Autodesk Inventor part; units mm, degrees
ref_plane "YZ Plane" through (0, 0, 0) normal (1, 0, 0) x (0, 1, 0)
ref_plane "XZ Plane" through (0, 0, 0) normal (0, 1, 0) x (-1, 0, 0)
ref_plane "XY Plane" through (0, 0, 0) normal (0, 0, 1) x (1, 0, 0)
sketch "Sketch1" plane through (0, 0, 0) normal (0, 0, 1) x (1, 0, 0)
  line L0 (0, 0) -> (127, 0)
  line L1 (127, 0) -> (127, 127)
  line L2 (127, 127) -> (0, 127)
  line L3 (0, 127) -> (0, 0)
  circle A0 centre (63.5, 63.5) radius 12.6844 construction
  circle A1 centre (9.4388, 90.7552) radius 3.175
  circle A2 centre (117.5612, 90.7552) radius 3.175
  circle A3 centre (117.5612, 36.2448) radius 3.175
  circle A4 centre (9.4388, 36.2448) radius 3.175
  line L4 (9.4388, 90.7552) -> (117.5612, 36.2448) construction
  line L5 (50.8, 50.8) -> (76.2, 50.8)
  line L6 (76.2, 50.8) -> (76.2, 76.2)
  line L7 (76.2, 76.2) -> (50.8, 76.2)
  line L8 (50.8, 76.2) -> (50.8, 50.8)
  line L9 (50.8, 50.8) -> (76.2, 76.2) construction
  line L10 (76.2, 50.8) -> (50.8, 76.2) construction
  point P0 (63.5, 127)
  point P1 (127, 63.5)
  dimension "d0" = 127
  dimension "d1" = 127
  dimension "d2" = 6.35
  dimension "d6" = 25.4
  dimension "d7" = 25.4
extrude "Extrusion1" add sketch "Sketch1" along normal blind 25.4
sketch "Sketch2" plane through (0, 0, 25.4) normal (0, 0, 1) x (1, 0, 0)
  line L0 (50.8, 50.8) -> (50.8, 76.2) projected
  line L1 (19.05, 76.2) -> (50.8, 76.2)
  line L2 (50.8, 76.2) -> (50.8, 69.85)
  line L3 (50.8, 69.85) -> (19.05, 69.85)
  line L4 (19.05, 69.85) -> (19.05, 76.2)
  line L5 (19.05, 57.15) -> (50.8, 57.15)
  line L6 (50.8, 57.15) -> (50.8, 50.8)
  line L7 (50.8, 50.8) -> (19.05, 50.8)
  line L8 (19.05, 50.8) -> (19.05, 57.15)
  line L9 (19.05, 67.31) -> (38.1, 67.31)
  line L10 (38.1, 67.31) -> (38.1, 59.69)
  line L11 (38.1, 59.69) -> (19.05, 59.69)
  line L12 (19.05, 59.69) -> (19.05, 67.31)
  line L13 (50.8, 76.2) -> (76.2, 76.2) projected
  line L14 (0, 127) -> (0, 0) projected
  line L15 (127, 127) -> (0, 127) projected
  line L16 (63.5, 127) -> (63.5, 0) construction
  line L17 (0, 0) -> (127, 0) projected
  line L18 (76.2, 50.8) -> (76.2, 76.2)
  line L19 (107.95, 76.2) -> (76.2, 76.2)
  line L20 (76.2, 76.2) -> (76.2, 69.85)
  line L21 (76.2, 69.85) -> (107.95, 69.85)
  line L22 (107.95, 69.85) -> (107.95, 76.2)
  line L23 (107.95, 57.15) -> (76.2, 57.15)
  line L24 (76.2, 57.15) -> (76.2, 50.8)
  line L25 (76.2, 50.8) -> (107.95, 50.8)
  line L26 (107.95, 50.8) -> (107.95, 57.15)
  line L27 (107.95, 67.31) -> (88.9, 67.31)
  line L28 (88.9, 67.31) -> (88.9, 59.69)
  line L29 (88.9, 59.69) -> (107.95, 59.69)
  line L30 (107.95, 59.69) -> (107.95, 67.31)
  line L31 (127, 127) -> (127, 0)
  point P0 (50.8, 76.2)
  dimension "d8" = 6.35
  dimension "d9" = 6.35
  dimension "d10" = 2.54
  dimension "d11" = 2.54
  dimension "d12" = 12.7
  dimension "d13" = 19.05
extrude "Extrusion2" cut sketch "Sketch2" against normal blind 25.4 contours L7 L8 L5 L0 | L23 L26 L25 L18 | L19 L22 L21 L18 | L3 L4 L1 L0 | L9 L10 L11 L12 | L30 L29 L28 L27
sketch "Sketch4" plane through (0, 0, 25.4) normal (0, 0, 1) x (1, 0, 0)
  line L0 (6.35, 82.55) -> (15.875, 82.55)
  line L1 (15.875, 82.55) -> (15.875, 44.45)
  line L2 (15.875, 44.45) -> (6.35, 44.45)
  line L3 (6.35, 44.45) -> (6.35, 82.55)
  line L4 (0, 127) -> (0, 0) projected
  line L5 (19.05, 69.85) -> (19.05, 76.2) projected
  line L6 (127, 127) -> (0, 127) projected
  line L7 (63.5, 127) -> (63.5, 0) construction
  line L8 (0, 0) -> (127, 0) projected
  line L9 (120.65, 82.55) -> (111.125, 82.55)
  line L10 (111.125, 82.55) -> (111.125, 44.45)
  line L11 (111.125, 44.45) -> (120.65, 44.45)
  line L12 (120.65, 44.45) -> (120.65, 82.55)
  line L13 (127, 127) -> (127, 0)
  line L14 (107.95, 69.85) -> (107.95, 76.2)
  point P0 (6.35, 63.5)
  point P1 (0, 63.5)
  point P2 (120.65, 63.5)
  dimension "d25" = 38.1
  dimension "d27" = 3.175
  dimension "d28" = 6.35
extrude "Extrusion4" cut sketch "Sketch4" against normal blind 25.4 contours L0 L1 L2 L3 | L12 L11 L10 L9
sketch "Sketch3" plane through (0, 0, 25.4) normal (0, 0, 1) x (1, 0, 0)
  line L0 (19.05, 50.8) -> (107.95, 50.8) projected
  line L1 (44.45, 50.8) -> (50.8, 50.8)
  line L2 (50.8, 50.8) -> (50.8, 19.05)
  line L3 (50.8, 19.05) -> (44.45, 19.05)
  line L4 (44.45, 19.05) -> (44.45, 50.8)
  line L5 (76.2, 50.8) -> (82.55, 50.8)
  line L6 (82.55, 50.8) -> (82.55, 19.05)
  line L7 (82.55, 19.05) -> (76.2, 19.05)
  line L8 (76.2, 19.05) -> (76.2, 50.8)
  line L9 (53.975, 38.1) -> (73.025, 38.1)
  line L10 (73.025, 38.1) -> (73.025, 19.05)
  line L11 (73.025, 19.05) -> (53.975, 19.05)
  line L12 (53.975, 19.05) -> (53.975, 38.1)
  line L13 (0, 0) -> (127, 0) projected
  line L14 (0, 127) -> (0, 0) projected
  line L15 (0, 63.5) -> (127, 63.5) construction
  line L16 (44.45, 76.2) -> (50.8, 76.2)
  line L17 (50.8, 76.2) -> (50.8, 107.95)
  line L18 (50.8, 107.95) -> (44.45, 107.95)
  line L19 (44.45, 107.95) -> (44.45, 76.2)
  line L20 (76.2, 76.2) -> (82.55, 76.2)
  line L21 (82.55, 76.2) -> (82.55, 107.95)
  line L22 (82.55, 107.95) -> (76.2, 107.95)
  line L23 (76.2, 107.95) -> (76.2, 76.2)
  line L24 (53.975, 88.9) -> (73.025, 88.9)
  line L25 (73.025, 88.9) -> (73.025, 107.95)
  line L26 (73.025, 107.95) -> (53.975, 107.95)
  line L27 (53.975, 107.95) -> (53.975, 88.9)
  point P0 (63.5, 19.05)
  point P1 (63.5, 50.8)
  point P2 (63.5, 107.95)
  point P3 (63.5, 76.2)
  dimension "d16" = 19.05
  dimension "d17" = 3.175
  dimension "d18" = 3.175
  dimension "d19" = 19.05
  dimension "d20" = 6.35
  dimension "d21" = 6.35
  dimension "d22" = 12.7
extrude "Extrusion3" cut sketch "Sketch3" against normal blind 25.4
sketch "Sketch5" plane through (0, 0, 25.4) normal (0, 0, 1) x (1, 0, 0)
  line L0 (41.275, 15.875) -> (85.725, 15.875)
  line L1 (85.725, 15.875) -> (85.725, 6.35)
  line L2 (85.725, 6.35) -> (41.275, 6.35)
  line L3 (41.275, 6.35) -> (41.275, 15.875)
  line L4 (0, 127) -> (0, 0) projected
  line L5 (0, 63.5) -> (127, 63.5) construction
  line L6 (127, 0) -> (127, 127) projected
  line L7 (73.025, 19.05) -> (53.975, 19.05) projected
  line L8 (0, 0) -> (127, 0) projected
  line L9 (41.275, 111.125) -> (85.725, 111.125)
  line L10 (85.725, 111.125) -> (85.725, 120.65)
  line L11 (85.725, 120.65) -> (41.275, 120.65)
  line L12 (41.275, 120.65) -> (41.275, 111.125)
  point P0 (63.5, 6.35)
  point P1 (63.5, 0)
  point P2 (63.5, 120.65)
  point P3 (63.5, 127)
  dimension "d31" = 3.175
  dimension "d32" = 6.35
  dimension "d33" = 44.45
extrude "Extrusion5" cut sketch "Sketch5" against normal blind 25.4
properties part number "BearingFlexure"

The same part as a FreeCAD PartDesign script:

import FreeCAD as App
import Part
import Sketcher
Q = App.Units.Quantity

doc = App.newDocument("Part")
body = doc.addObject("PartDesign::Body", "Body")

# Sketch on XY plane
sketch1 = doc.addObject("Sketcher::SketchObject", "Sketch")
body.addObject(sketch1)
sketch1.AttachmentSupport = (doc.XY_Plane, [""])
sketch1.MapMode = "FlatFace"
sketch1.addGeometry(Part.LineSegment(App.Vector(0, 127, 0), App.Vector(0, 0, 0)), False)
sketch1.addGeometry(Part.LineSegment(App.Vector(0, 0, 0), App.Vector(127, 0, 0)), False)
sketch1.addGeometry(Part.LineSegment(App.Vector(127, 0, 0), App.Vector(127, 127, 0)), False)
sketch1.addGeometry(Part.LineSegment(App.Vector(127, 127, 0), App.Vector(0, 127, 0)), False)
sketch1.addGeometry(Part.Circle(App.Vector(9.4, 36.2, 0), App.Vector(0, 0, 1), 3.2), False)
sketch1.addGeometry(Part.Circle(App.Vector(117.6, 36.2, 0), App.Vector(0, 0, 1), 3.2), False)
sketch1.addGeometry(Part.Circle(App.Vector(9.4, 90.8, 0), App.Vector(0, 0, 1), 3.2), False)
sketch1.addGeometry(Part.LineSegment(App.Vector(76.2, 50.8, 0), App.Vector(50.8, 50.8, 0)), False)
sketch1.addGeometry(Part.LineSegment(App.Vector(50.8, 50.8, 0), App.Vector(50.8, 76.2, 0)), False)
sketch1.addGeometry(Part.LineSegment(App.Vector(50.8, 76.2, 0), App.Vector(76.2, 76.2, 0)), False)
sketch1.addGeometry(Part.LineSegment(App.Vector(76.2, 76.2, 0), App.Vector(76.2, 50.8, 0)), False)
sketch1.addGeometry(Part.Circle(App.Vector(117.6, 90.8, 0), App.Vector(0, 0, 1), 3.2), False)
sketch1.addConstraint(Sketcher.Constraint("Coincident", 0, 2, 1, 1))
sketch1.addConstraint(Sketcher.Constraint("Coincident", 1, 2, 2, 1))
sketch1.addConstraint(Sketcher.Constraint("Coincident", 2, 2, 3, 1))
sketch1.addConstraint(Sketcher.Constraint("Coincident", 3, 2, 0, 1))
sketch1.addConstraint(Sketcher.Constraint("Coincident", 7, 2, 8, 1))
sketch1.addConstraint(Sketcher.Constraint("Coincident", 8, 2, 9, 1))
sketch1.addConstraint(Sketcher.Constraint("Coincident", 9, 2, 10, 1))
sketch1.addConstraint(Sketcher.Constraint("Coincident", 10, 2, 7, 1))
sketch1.addConstraint(Sketcher.Constraint("Vertical", 0))
sketch1.addConstraint(Sketcher.Constraint("Horizontal", 1))
sketch1.addConstraint(Sketcher.Constraint("Vertical", 2))
sketch1.addConstraint(Sketcher.Constraint("Horizontal", 3))
sketch1.addConstraint(Sketcher.Constraint("Horizontal", 7))
sketch1.addConstraint(Sketcher.Constraint("Vertical", 8))
sketch1.addConstraint(Sketcher.Constraint("Horizontal", 9))
sketch1.addConstraint(Sketcher.Constraint("Vertical", 10))
sketch1.addConstraint(Sketcher.Constraint("Coincident", 0, 2, -1, 1))
sketch1.addConstraint(Sketcher.Constraint("Equal", 4, 5))
sketch1.addConstraint(Sketcher.Constraint("Equal", 5, 6))
sketch1.addConstraint(Sketcher.Constraint("Equal", 6, 11))
sketch1.addConstraint(Sketcher.Constraint("Horizontal", 4, 3, 5, 3))
sketch1.addConstraint(Sketcher.Constraint("Horizontal", 6, 3, 11, 3))
sketch1.addConstraint(Sketcher.Constraint("Vertical", 4, 3, 6, 3))
sketch1.addConstraint(Sketcher.Constraint("Vertical", 5, 3, 11, 3))
sketch1.addConstraint(Sketcher.Constraint("Equal", 3, 0))
sketch1.addConstraint(Sketcher.Constraint("Equal", 9, 8))
sketch1.addConstraint(Sketcher.Constraint("Diameter", 4, Q("0.25 in")))
sketch1.addConstraint(Sketcher.Constraint("DistanceX", 1, 1, 1, 2, Q("5 in")))
sketch1.addConstraint(Sketcher.Constraint("DistanceX", 7, 2, 7, 1, Q("1 in")))
sketch1.addConstraint(Sketcher.Constraint("DistanceX", -1, 1, 7, 2, Q("2 in")))
sketch1.addConstraint(Sketcher.Constraint("DistanceY", -1, 1, 7, 2, Q("2 in")))
sketch1.addConstraint(Sketcher.Constraint("DistanceX", -1, 1, 4, 3, Q("0.3716 in")))
sketch1.addConstraint(Sketcher.Constraint("DistanceX", -1, 1, 5, 3, Q("4.6284 in")))
sketch1.addConstraint(Sketcher.Constraint("DistanceY", -1, 1, 4, 3, Q("36.2448 mm")))
sketch1.addConstraint(Sketcher.Constraint("DistanceY", -1, 1, 6, 3, Q("90.7552 mm")))
pad1 = doc.addObject("PartDesign::Pad", "Pad")
body.addObject(pad1)
pad1.Profile = sketch1
pad1.Length = Q("1 in")

# Sketch on XY plane
sketch2 = doc.addObject("Sketcher::SketchObject", "Sketch001")
body.addObject(sketch2)
sketch2.AttachmentSupport = (doc.XY_Plane, [""])
sketch2.MapMode = "FlatFace"
sketch2.AttachmentOffset = App.Placement(App.Vector(0, 0, 1 * 25.4), App.Rotation())
sketch2.addGeometry(Part.LineSegment(App.Vector(19, 51, 0), App.Vector(51, 51, 0)), False)
sketch2.addGeometry(Part.LineSegment(App.Vector(51, 51, 0), App.Vector(51, 57, 0)), False)
sketch2.addGeometry(Part.LineSegment(App.Vector(51, 57, 0), App.Vector(19, 57, 0)), False)
sketch2.addGeometry(Part.LineSegment(App.Vector(19, 57, 0), App.Vector(19, 51, 0)), False)
sketch2.addGeometry(Part.LineSegment(App.Vector(108, 57, 0), App.Vector(76, 57, 0)), False)
sketch2.addGeometry(Part.LineSegment(App.Vector(76, 57, 0), App.Vector(76, 51, 0)), False)
sketch2.addGeometry(Part.LineSegment(App.Vector(76, 51, 0), App.Vector(108, 51, 0)), False)
sketch2.addGeometry(Part.LineSegment(App.Vector(108, 51, 0), App.Vector(108, 57, 0)), False)
sketch2.addGeometry(Part.LineSegment(App.Vector(108, 76, 0), App.Vector(76, 76, 0)), False)
sketch2.addGeometry(Part.LineSegment(App.Vector(76, 76, 0), App.Vector(76, 70, 0)), False)
sketch2.addGeometry(Part.LineSegment(App.Vector(76, 70, 0), App.Vector(108, 70, 0)), False)
sketch2.addGeometry(Part.LineSegment(App.Vector(108, 70, 0), App.Vector(108, 76, 0)), False)
sketch2.addGeometry(Part.LineSegment(App.Vector(19, 70, 0), App.Vector(51, 70, 0)), False)
sketch2.addGeometry(Part.LineSegment(App.Vector(51, 70, 0), App.Vector(51, 76, 0)), False)
sketch2.addGeometry(Part.LineSegment(App.Vector(51, 76, 0), App.Vector(19, 76, 0)), False)
sketch2.addGeometry(Part.LineSegment(App.Vector(19, 76, 0), App.Vector(19, 70, 0)), False)
sketch2.addGeometry(Part.LineSegment(App.Vector(38, 67, 0), App.Vector(19, 67, 0)), False)
sketch2.addGeometry(Part.LineSegment(App.Vector(19, 67, 0), App.Vector(19, 60, 0)), False)
sketch2.addGeometry(Part.LineSegment(App.Vector(19, 60, 0), App.Vector(38, 60, 0)), False)
sketch2.addGeometry(Part.LineSegment(App.Vector(38, 60, 0), App.Vector(38, 67, 0)), False)
sketch2.addGeometry(Part.LineSegment(App.Vector(108, 60, 0), App.Vector(108, 67, 0)), False)
sketch2.addGeometry(Part.LineSegment(App.Vector(108, 67, 0), App.Vector(89, 67, 0)), False)
sketch2.addGeometry(Part.LineSegment(App.Vector(89, 67, 0), App.Vector(89, 60, 0)), False)
sketch2.addGeometry(Part.LineSegment(App.Vector(89, 60, 0), App.Vector(108, 60, 0)), False)
sketch2.addConstraint(Sketcher.Constraint("Coincident", 0, 2, 1, 1))
sketch2.addConstraint(Sketcher.Constraint("Coincident", 1, 2, 2, 1))
sketch2.addConstraint(Sketcher.Constraint("Coincident", 2, 2, 3, 1))
sketch2.addConstraint(Sketcher.Constraint("Coincident", 3, 2, 0, 1))
sketch2.addConstraint(Sketcher.Constraint("Coincident", 4, 2, 5, 1))
sketch2.addConstraint(Sketcher.Constraint("Coincident", 5, 2, 6, 1))
sketch2.addConstraint(Sketcher.Constraint("Coincident", 6, 2, 7, 1))
sketch2.addConstraint(Sketcher.Constraint("Coincident", 7, 2, 4, 1))
sketch2.addConstraint(Sketcher.Constraint("Coincident", 8, 2, 9, 1))
sketch2.addConstraint(Sketcher.Constraint("Coincident", 9, 2, 10, 1))
sketch2.addConstraint(Sketcher.Constraint("Coincident", 10, 2, 11, 1))
sketch2.addConstraint(Sketcher.Constraint("Coincident", 11, 2, 8, 1))
sketch2.addConstraint(Sketcher.Constraint("Coincident", 12, 2, 13, 1))
sketch2.addConstraint(Sketcher.Constraint("Coincident", 13, 2, 14, 1))
sketch2.addConstraint(Sketcher.Constraint("Coincident", 14, 2, 15, 1))
sketch2.addConstraint(Sketcher.Constraint("Coincident", 15, 2, 12, 1))
sketch2.addConstraint(Sketcher.Constraint("Coincident", 16, 2, 17, 1))
sketch2.addConstraint(Sketcher.Constraint("Coincident", 17, 2, 18, 1))
sketch2.addConstraint(Sketcher.Constraint("Coincident", 18, 2, 19, 1))
sketch2.addConstraint(Sketcher.Constraint("Coincident", 19, 2, 16, 1))
sketch2.addConstraint(Sketcher.Constraint("Coincident", 20, 2, 21, 1))
sketch2.addConstraint(Sketcher.Constraint("Coincident", 21, 2, 22, 1))
sketch2.addConstraint(Sketcher.Constraint("Coincident", 22, 2, 23, 1))
sketch2.addConstraint(Sketcher.Constraint("Coincident", 23, 2, 20, 1))
sketch2.addConstraint(Sketcher.Constraint("Horizontal", 0))
sketch2.addConstraint(Sketcher.Constraint("Vertical", 1))
sketch2.addConstraint(Sketcher.Constraint("Horizontal", 2))
sketch2.addConstraint(Sketcher.Constraint("Vertical", 3))
sketch2.addConstraint(Sketcher.Constraint("Horizontal", 4))
sketch2.addConstraint(Sketcher.Constraint("Vertical", 5))
sketch2.addConstraint(Sketcher.Constraint("Horizontal", 6))
sketch2.addConstraint(Sketcher.Constraint("Vertical", 7))
sketch2.addConstraint(Sketcher.Constraint("Horizontal", 8))
sketch2.addConstraint(Sketcher.Constraint("Vertical", 9))
sketch2.addConstraint(Sketcher.Constraint("Horizontal", 10))
sketch2.addConstraint(Sketcher.Constraint("Vertical", 11))
sketch2.addConstraint(Sketcher.Constraint("Horizontal", 12))
sketch2.addConstraint(Sketcher.Constraint("Vertical", 13))
sketch2.addConstraint(Sketcher.Constraint("Horizontal", 14))
sketch2.addConstraint(Sketcher.Constraint("Vertical", 15))
sketch2.addConstraint(Sketcher.Constraint("Horizontal", 16))
sketch2.addConstraint(Sketcher.Constraint("Vertical", 17))
sketch2.addConstraint(Sketcher.Constraint("Horizontal", 18))
sketch2.addConstraint(Sketcher.Constraint("Vertical", 19))
sketch2.addConstraint(Sketcher.Constraint("Vertical", 20))
sketch2.addConstraint(Sketcher.Constraint("Horizontal", 21))
sketch2.addConstraint(Sketcher.Constraint("Vertical", 22))
sketch2.addConstraint(Sketcher.Constraint("Horizontal", 23))
sketch2.addConstraint(Sketcher.Constraint("Horizontal", 2, 2, 4, 2))
sketch2.addConstraint(Sketcher.Constraint("Horizontal", 3, 2, 5, 2))
sketch2.addConstraint(Sketcher.Constraint("Horizontal", 10, 2, 12, 2))
sketch2.addConstraint(Sketcher.Constraint("Horizontal", 11, 2, 13, 2))
sketch2.addConstraint(Sketcher.Constraint("Horizontal", 19, 2, 20, 2))
sketch2.addConstraint(Sketcher.Constraint("Horizontal", 18, 2, 22, 2))
sketch2.addConstraint(Sketcher.Constraint("Vertical", 5, 2, 8, 2))
sketch2.addConstraint(Sketcher.Constraint("Vertical", 7, 2, 10, 2))
sketch2.addConstraint(Sketcher.Constraint("Vertical", 1, 2, 12, 2))
sketch2.addConstraint(Sketcher.Constraint("Vertical", 3, 2, 14, 2))
sketch2.addConstraint(Sketcher.Constraint("Vertical", 15, 2, 16, 2))
sketch2.addConstraint(Sketcher.Constraint("Vertical", 11, 2, 20, 2))
sketch2.addConstraint(Sketcher.Constraint("Equal", 2, 4))
sketch2.addConstraint(Sketcher.Constraint("Equal", 18, 21))
sketch2.addConstraint(Sketcher.Constraint("Equal", 7, 9))
sketch2.addConstraint(Sketcher.Constraint("DistanceX", 16, 2, 16, 1, Q("0.75 in")))
sketch2.addConstraint(Sketcher.Constraint("DistanceY", 1, 1, 1, 2, Q("0.25 in")))
sketch2.addConstraint(Sketcher.Constraint("DistanceY", 4, 2, 9, 2, Q("0.5 in")))
sketch2.addConstraint(Sketcher.Constraint("DistanceY", 16, 2, 15, 2, Q("0.1 in")))
sketch2.addConstraint(Sketcher.Constraint("DistanceY", 2, 2, 17, 2, Q("0.1 in")))
sketch2.addConstraint(Sketcher.Constraint("DistanceX", 18, 2, 1, 2, Q("0.5 in")))
sketch2.addConstraint(Sketcher.Constraint("DistanceX", -1, 1, 2, 2, Q("0.75 in")))
sketch2.addConstraint(Sketcher.Constraint("DistanceY", -1, 1, 0, 2, Q("2 in")))
sketch2.addConstraint(Sketcher.Constraint("DistanceX", -1, 1, 4, 2, Q("3 in")))
pocket1 = doc.addObject("PartDesign::Pocket", "Pocket")
body.addObject(pocket1)
pocket1.Profile = sketch2
pocket1.Length = Q("1 in")

# Sketch on XY plane
sketch3 = doc.addObject("Sketcher::SketchObject", "Sketch002")
body.addObject(sketch3)
sketch3.AttachmentSupport = (doc.XY_Plane, [""])
sketch3.MapMode = "FlatFace"
sketch3.AttachmentOffset = App.Placement(App.Vector(0, 0, 1 * 25.4), App.Rotation())
sketch3.addGeometry(Part.LineSegment(App.Vector(16, 83, 0), App.Vector(6, 83, 0)), False)
sketch3.addGeometry(Part.LineSegment(App.Vector(6, 83, 0), App.Vector(6, 44, 0)), False)
sketch3.addGeometry(Part.LineSegment(App.Vector(6, 44, 0), App.Vector(16, 44, 0)), False)
sketch3.addGeometry(Part.LineSegment(App.Vector(16, 44, 0), App.Vector(16, 83, 0)), False)
sketch3.addGeometry(Part.LineSegment(App.Vector(121, 44, 0), App.Vector(121, 83, 0)), False)
sketch3.addGeometry(Part.LineSegment(App.Vector(121, 83, 0), App.Vector(111, 83, 0)), False)
sketch3.addGeometry(Part.LineSegment(App.Vector(111, 83, 0), App.Vector(111, 44, 0)), False)
sketch3.addGeometry(Part.LineSegment(App.Vector(111, 44, 0), App.Vector(121, 44, 0)), False)
sketch3.addConstraint(Sketcher.Constraint("Coincident", 0, 2, 1, 1))
sketch3.addConstraint(Sketcher.Constraint("Coincident", 1, 2, 2, 1))
sketch3.addConstraint(Sketcher.Constraint("Coincident", 2, 2, 3, 1))
sketch3.addConstraint(Sketcher.Constraint("Coincident", 3, 2, 0, 1))
sketch3.addConstraint(Sketcher.Constraint("Coincident", 4, 2, 5, 1))
sketch3.addConstraint(Sketcher.Constraint("Coincident", 5, 2, 6, 1))
sketch3.addConstraint(Sketcher.Constraint("Coincident", 6, 2, 7, 1))
sketch3.addConstraint(Sketcher.Constraint("Coincident", 7, 2, 4, 1))
sketch3.addConstraint(Sketcher.Constraint("Horizontal", 0))
sketch3.addConstraint(Sketcher.Constraint("Vertical", 1))
sketch3.addConstraint(Sketcher.Constraint("Horizontal", 2))
sketch3.addConstraint(Sketcher.Constraint("Vertical", 3))
sketch3.addConstraint(Sketcher.Constraint("Vertical", 4))
sketch3.addConstraint(Sketcher.Constraint("Horizontal", 5))
sketch3.addConstraint(Sketcher.Constraint("Vertical", 6))
sketch3.addConstraint(Sketcher.Constraint("Horizontal", 7))
sketch3.addConstraint(Sketcher.Constraint("Horizontal", 3, 2, 4, 2))
sketch3.addConstraint(Sketcher.Constraint("Horizontal", 2, 2, 6, 2))
sketch3.addConstraint(Sketcher.Constraint("Equal", 2, 5))
sketch3.addConstraint(Sketcher.Constraint("DistanceY", 1, 2, 1, 1, Q("1.5 in")))
sketch3.addConstraint(Sketcher.Constraint("DistanceX", -1, 1, 0, 2, Q("0.25 in")))
sketch3.addConstraint(Sketcher.Constraint("DistanceX", 0, 2, 4, 2, Q("4.5 in")))
sketch3.addConstraint(Sketcher.Constraint("DistanceX", 0, 2, 0, 1, Q("0.375 in")))
sketch3.addConstraint(Sketcher.Constraint("DistanceY", -1, 1, 0, 2, Q("3.25 in")))
pocket2 = doc.addObject("PartDesign::Pocket", "Pocket001")
body.addObject(pocket2)
pocket2.Profile = sketch3
pocket2.Length = Q("1 in")

# Sketch on XY plane
sketch4 = doc.addObject("Sketcher::SketchObject", "Sketch003")
body.addObject(sketch4)
sketch4.AttachmentSupport = (doc.XY_Plane, [""])
sketch4.MapMode = "FlatFace"
sketch4.AttachmentOffset = App.Placement(App.Vector(0, 0, 1 * 25.4), App.Rotation())
sketch4.addGeometry(Part.LineSegment(App.Vector(83, 51, 0), App.Vector(76, 51, 0)), False)
sketch4.addGeometry(Part.LineSegment(App.Vector(76, 51, 0), App.Vector(76, 19, 0)), False)
sketch4.addGeometry(Part.LineSegment(App.Vector(76, 19, 0), App.Vector(83, 19, 0)), False)
sketch4.addGeometry(Part.LineSegment(App.Vector(83, 19, 0), App.Vector(83, 51, 0)), False)
sketch4.addGeometry(Part.LineSegment(App.Vector(51, 51, 0), App.Vector(44, 51, 0)), False)
sketch4.addGeometry(Part.LineSegment(App.Vector(44, 51, 0), App.Vector(44, 19, 0)), False)
sketch4.addGeometry(Part.LineSegment(App.Vector(44, 19, 0), App.Vector(51, 19, 0)), False)
sketch4.addGeometry(Part.LineSegment(App.Vector(51, 19, 0), App.Vector(51, 51, 0)), False)
sketch4.addGeometry(Part.LineSegment(App.Vector(73, 38, 0), App.Vector(54, 38, 0)), False)
sketch4.addGeometry(Part.LineSegment(App.Vector(54, 38, 0), App.Vector(54, 19, 0)), False)
sketch4.addGeometry(Part.LineSegment(App.Vector(54, 19, 0), App.Vector(73, 19, 0)), False)
sketch4.addGeometry(Part.LineSegment(App.Vector(73, 19, 0), App.Vector(73, 38, 0)), False)
sketch4.addGeometry(Part.LineSegment(App.Vector(44, 108, 0), App.Vector(44, 76, 0)), False)
sketch4.addGeometry(Part.LineSegment(App.Vector(44, 76, 0), App.Vector(51, 76, 0)), False)
sketch4.addGeometry(Part.LineSegment(App.Vector(51, 76, 0), App.Vector(51, 108, 0)), False)
sketch4.addGeometry(Part.LineSegment(App.Vector(51, 108, 0), App.Vector(44, 108, 0)), False)
sketch4.addGeometry(Part.LineSegment(App.Vector(76, 108, 0), App.Vector(76, 76, 0)), False)
sketch4.addGeometry(Part.LineSegment(App.Vector(76, 76, 0), App.Vector(83, 76, 0)), False)
sketch4.addGeometry(Part.LineSegment(App.Vector(83, 76, 0), App.Vector(83, 108, 0)), False)
sketch4.addGeometry(Part.LineSegment(App.Vector(83, 108, 0), App.Vector(76, 108, 0)), False)
sketch4.addGeometry(Part.LineSegment(App.Vector(54, 108, 0), App.Vector(54, 89, 0)), False)
sketch4.addGeometry(Part.LineSegment(App.Vector(54, 89, 0), App.Vector(73, 89, 0)), False)
sketch4.addGeometry(Part.LineSegment(App.Vector(73, 89, 0), App.Vector(73, 108, 0)), False)
sketch4.addGeometry(Part.LineSegment(App.Vector(73, 108, 0), App.Vector(54, 108, 0)), False)
sketch4.addConstraint(Sketcher.Constraint("Coincident", 0, 2, 1, 1))
sketch4.addConstraint(Sketcher.Constraint("Coincident", 1, 2, 2, 1))
sketch4.addConstraint(Sketcher.Constraint("Coincident", 2, 2, 3, 1))
sketch4.addConstraint(Sketcher.Constraint("Coincident", 3, 2, 0, 1))
sketch4.addConstraint(Sketcher.Constraint("Coincident", 4, 2, 5, 1))
sketch4.addConstraint(Sketcher.Constraint("Coincident", 5, 2, 6, 1))
sketch4.addConstraint(Sketcher.Constraint("Coincident", 6, 2, 7, 1))
sketch4.addConstraint(Sketcher.Constraint("Coincident", 7, 2, 4, 1))
sketch4.addConstraint(Sketcher.Constraint("Coincident", 8, 2, 9, 1))
sketch4.addConstraint(Sketcher.Constraint("Coincident", 9, 2, 10, 1))
sketch4.addConstraint(Sketcher.Constraint("Coincident", 10, 2, 11, 1))
sketch4.addConstraint(Sketcher.Constraint("Coincident", 11, 2, 8, 1))
sketch4.addConstraint(Sketcher.Constraint("Coincident", 12, 2, 13, 1))
sketch4.addConstraint(Sketcher.Constraint("Coincident", 13, 2, 14, 1))
sketch4.addConstraint(Sketcher.Constraint("Coincident", 14, 2, 15, 1))
sketch4.addConstraint(Sketcher.Constraint("Coincident", 15, 2, 12, 1))
sketch4.addConstraint(Sketcher.Constraint("Coincident", 16, 2, 17, 1))
sketch4.addConstraint(Sketcher.Constraint("Coincident", 17, 2, 18, 1))
sketch4.addConstraint(Sketcher.Constraint("Coincident", 18, 2, 19, 1))
sketch4.addConstraint(Sketcher.Constraint("Coincident", 19, 2, 16, 1))
sketch4.addConstraint(Sketcher.Constraint("Coincident", 20, 2, 21, 1))
sketch4.addConstraint(Sketcher.Constraint("Coincident", 21, 2, 22, 1))
sketch4.addConstraint(Sketcher.Constraint("Coincident", 22, 2, 23, 1))
sketch4.addConstraint(Sketcher.Constraint("Coincident", 23, 2, 20, 1))
sketch4.addConstraint(Sketcher.Constraint("Horizontal", 0))
sketch4.addConstraint(Sketcher.Constraint("Vertical", 1))
sketch4.addConstraint(Sketcher.Constraint("Horizontal", 2))
sketch4.addConstraint(Sketcher.Constraint("Vertical", 3))
sketch4.addConstraint(Sketcher.Constraint("Horizontal", 4))
sketch4.addConstraint(Sketcher.Constraint("Vertical", 5))
sketch4.addConstraint(Sketcher.Constraint("Horizontal", 6))
sketch4.addConstraint(Sketcher.Constraint("Vertical", 7))
sketch4.addConstraint(Sketcher.Constraint("Horizontal", 8))
sketch4.addConstraint(Sketcher.Constraint("Vertical", 9))
sketch4.addConstraint(Sketcher.Constraint("Horizontal", 10))
sketch4.addConstraint(Sketcher.Constraint("Vertical", 11))
sketch4.addConstraint(Sketcher.Constraint("Vertical", 12))
sketch4.addConstraint(Sketcher.Constraint("Horizontal", 13))
sketch4.addConstraint(Sketcher.Constraint("Vertical", 14))
sketch4.addConstraint(Sketcher.Constraint("Horizontal", 15))
sketch4.addConstraint(Sketcher.Constraint("Vertical", 16))
sketch4.addConstraint(Sketcher.Constraint("Horizontal", 17))
sketch4.addConstraint(Sketcher.Constraint("Vertical", 18))
sketch4.addConstraint(Sketcher.Constraint("Horizontal", 19))
sketch4.addConstraint(Sketcher.Constraint("Vertical", 20))
sketch4.addConstraint(Sketcher.Constraint("Horizontal", 21))
sketch4.addConstraint(Sketcher.Constraint("Vertical", 22))
sketch4.addConstraint(Sketcher.Constraint("Horizontal", 23))
sketch4.addConstraint(Sketcher.Constraint("Horizontal", 3, 2, 4, 2))
sketch4.addConstraint(Sketcher.Constraint("Horizontal", 2, 2, 5, 2))
sketch4.addConstraint(Sketcher.Constraint("Horizontal", 6, 2, 9, 2))
sketch4.addConstraint(Sketcher.Constraint("Horizontal", 13, 2, 16, 2))
sketch4.addConstraint(Sketcher.Constraint("Horizontal", 15, 2, 18, 2))
sketch4.addConstraint(Sketcher.Constraint("Horizontal", 19, 2, 22, 2))
sketch4.addConstraint(Sketcher.Constraint("Vertical", 5, 2, 12, 2))
sketch4.addConstraint(Sketcher.Constraint("Vertical", 7, 2, 13, 2))
sketch4.addConstraint(Sketcher.Constraint("Vertical", 1, 2, 16, 2))
sketch4.addConstraint(Sketcher.Constraint("Vertical", 3, 2, 17, 2))
sketch4.addConstraint(Sketcher.Constraint("Vertical", 9, 2, 20, 2))
sketch4.addConstraint(Sketcher.Constraint("Vertical", 11, 2, 21, 2))
sketch4.addConstraint(Sketcher.Constraint("Equal", 2, 4))
sketch4.addConstraint(Sketcher.Constraint("Equal", 23, 9))
sketch4.addConstraint(Sketcher.Constraint("Equal", 7, 12))
sketch4.addConstraint(Sketcher.Constraint("Equal", 11, 20))
sketch4.addConstraint(Sketcher.Constraint("DistanceX", 0, 2, 0, 1, Q("0.25 in")))
sketch4.addConstraint(Sketcher.Constraint("DistanceX", 8, 2, 8, 1, Q("0.75 in")))
sketch4.addConstraint(Sketcher.Constraint("DistanceY", 8, 2, 7, 2, Q("0.5 in")))
sketch4.addConstraint(Sketcher.Constraint("DistanceY", -1, 1, 1, 2, Q("0.75 in")))
sketch4.addConstraint(Sketcher.Constraint("DistanceX", -1, 1, 0, 2, Q("3 in")))
sketch4.addConstraint(Sketcher.Constraint("DistanceX", -1, 1, 6, 2, Q("2 in")))
sketch4.addConstraint(Sketcher.Constraint("DistanceY", -1, 1, 12, 2, Q("3 in")))
sketch4.addConstraint(Sketcher.Constraint("DistanceX", 7, 2, 8, 2, Q("0.125 in")))
pocket3 = doc.addObject("PartDesign::Pocket", "Pocket002")
body.addObject(pocket3)
pocket3.Profile = sketch4
pocket3.Length = Q("1 in")

# Sketch on XY plane
sketch5 = doc.addObject("Sketcher::SketchObject", "Sketch004")
body.addObject(sketch5)
sketch5.AttachmentSupport = (doc.XY_Plane, [""])
sketch5.MapMode = "FlatFace"
sketch5.AttachmentOffset = App.Placement(App.Vector(0, 0, 1 * 25.4), App.Rotation())
sketch5.addGeometry(Part.LineSegment(App.Vector(86, 16, 0), App.Vector(41, 16, 0)), False)
sketch5.addGeometry(Part.LineSegment(App.Vector(41, 16, 0), App.Vector(41, 6, 0)), False)
sketch5.addGeometry(Part.LineSegment(App.Vector(41, 6, 0), App.Vector(86, 6, 0)), False)
sketch5.addGeometry(Part.LineSegment(App.Vector(86, 6, 0), App.Vector(86, 16, 0)), False)
sketch5.addGeometry(Part.LineSegment(App.Vector(41, 121, 0), App.Vector(41, 111, 0)), False)
sketch5.addGeometry(Part.LineSegment(App.Vector(41, 111, 0), App.Vector(86, 111, 0)), False)
sketch5.addGeometry(Part.LineSegment(App.Vector(86, 111, 0), App.Vector(86, 121, 0)), False)
sketch5.addGeometry(Part.LineSegment(App.Vector(86, 121, 0), App.Vector(41, 121, 0)), False)
sketch5.addConstraint(Sketcher.Constraint("Coincident", 0, 2, 1, 1))
sketch5.addConstraint(Sketcher.Constraint("Coincident", 1, 2, 2, 1))
sketch5.addConstraint(Sketcher.Constraint("Coincident", 2, 2, 3, 1))
sketch5.addConstraint(Sketcher.Constraint("Coincident", 3, 2, 0, 1))
sketch5.addConstraint(Sketcher.Constraint("Coincident", 4, 2, 5, 1))
sketch5.addConstraint(Sketcher.Constraint("Coincident", 5, 2, 6, 1))
sketch5.addConstraint(Sketcher.Constraint("Coincident", 6, 2, 7, 1))
sketch5.addConstraint(Sketcher.Constraint("Coincident", 7, 2, 4, 1))
sketch5.addConstraint(Sketcher.Constraint("Horizontal", 0))
sketch5.addConstraint(Sketcher.Constraint("Vertical", 1))
sketch5.addConstraint(Sketcher.Constraint("Horizontal", 2))
sketch5.addConstraint(Sketcher.Constraint("Vertical", 3))
sketch5.addConstraint(Sketcher.Constraint("Vertical", 4))
sketch5.addConstraint(Sketcher.Constraint("Horizontal", 5))
sketch5.addConstraint(Sketcher.Constraint("Vertical", 6))
sketch5.addConstraint(Sketcher.Constraint("Horizontal", 7))
sketch5.addConstraint(Sketcher.Constraint("Vertical", 1, 2, 4, 2))
sketch5.addConstraint(Sketcher.Constraint("Vertical", 3, 2, 5, 2))
sketch5.addConstraint(Sketcher.Constraint("Equal", 3, 4))
sketch5.addConstraint(Sketcher.Constraint("DistanceX", 0, 2, 0, 1, Q("1.75 in")))
sketch5.addConstraint(Sketcher.Constraint("DistanceY", -1, 1, 1, 2, Q("0.25 in")))
sketch5.addConstraint(Sketcher.Constraint("DistanceY", 2, 2, 6, 2, Q("4.5 in")))
sketch5.addConstraint(Sketcher.Constraint("DistanceY", 1, 2, 1, 1, Q("0.375 in")))
sketch5.addConstraint(Sketcher.Constraint("DistanceX", -1, 1, 0, 2, Q("1.625 in")))
pocket4 = doc.addObject("PartDesign::Pocket", "Pocket003")
body.addObject(pocket4)
pocket4.Profile = sketch5
pocket4.Length = Q("1 in")

doc.recompute()
